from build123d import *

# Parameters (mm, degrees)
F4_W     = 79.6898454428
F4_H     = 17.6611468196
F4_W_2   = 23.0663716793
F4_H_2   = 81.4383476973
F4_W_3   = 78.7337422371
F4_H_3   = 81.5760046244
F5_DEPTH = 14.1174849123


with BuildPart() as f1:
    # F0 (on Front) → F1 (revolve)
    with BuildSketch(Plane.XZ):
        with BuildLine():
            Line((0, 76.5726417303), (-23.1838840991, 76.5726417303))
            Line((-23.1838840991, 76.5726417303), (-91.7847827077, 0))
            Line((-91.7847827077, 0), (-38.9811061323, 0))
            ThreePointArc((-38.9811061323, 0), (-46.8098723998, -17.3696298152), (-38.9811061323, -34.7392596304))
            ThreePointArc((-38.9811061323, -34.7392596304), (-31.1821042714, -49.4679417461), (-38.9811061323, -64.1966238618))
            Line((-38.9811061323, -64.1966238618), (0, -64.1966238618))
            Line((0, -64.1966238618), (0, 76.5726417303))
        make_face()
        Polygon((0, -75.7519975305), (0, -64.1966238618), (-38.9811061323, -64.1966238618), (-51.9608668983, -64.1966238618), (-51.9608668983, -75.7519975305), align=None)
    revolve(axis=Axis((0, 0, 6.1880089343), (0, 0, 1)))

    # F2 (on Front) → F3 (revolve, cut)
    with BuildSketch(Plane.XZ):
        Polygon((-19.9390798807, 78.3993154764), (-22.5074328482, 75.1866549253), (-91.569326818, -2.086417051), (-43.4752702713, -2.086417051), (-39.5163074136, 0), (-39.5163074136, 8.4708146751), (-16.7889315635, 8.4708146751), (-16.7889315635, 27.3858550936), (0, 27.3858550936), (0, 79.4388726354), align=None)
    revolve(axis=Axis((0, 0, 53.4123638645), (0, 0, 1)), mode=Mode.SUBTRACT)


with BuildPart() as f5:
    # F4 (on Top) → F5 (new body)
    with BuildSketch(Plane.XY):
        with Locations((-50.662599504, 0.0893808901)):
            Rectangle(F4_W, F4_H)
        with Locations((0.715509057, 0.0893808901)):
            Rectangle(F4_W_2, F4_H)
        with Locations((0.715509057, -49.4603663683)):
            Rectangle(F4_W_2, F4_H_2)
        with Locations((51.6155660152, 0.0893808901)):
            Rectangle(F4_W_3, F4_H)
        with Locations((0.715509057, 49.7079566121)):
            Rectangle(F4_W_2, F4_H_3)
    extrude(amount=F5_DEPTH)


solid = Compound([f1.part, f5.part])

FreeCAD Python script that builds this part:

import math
import FreeCAD as App
import Part
import Sketcher

V = App.Vector

doc = App.newDocument("Part")
body = doc.addObject("PartDesign::Body", "Body")
body.AllowCompound = True

sketch1 = doc.addObject("Sketcher::SketchObject", "Sketch")
body.addObject(sketch1)
sketch1.AttachmentSupport = (doc.XZ_Plane, [""])
sketch1.MapMode = "FlatFace"
sketch1.addGeometry([
    Part.LineSegment(V(0, 77, 0), V(-23, 77, 0)),
    Part.LineSegment(V(-23, 77, 0), V(-92, 0, 0)),
    Part.LineSegment(V(-92, 0, 0), V(-39, 0, 0)),
    Part.ArcOfCircle(Part.Circle(V(-24, -17, 0), V(0, 0, 1), 23), math.radians(131), math.radians(229)),
    Part.ArcOfCircle(Part.Circle(V(-49, -49, 0), V(0, 0, 1), 18), math.radians(-56), math.radians(56)),
    Part.LineSegment(V(-39, -64, 0), V(-52, -64, 0)),
    Part.LineSegment(V(-52, -64, 0), V(-52, -76, 0)),
    Part.LineSegment(V(-52, -76, 0), V(0, -76, 0)),
    Part.LineSegment(V(0, -76, 0), V(0, 77, 0)),
], False)
sketch1.addConstraint([
    Sketcher.Constraint("Coincident", 0, 2, 1, 1),
    Sketcher.Constraint("Coincident", 1, 2, 2, 1),
    Sketcher.Constraint("Coincident", 2, 2, 3, 1),
    Sketcher.Constraint("Coincident", 3, 2, 4, 2),
    Sketcher.Constraint("Coincident", 4, 1, 5, 1),
    Sketcher.Constraint("Coincident", 5, 2, 6, 1),
    Sketcher.Constraint("Coincident", 6, 2, 7, 1),
    Sketcher.Constraint("Coincident", 7, 2, 8, 1),
    Sketcher.Constraint("Coincident", 8, 2, 0, 1),
    Sketcher.Constraint("Horizontal", 0),
    Sketcher.Constraint("Horizontal", 2),
    Sketcher.Constraint("Horizontal", 5),
    Sketcher.Constraint("Vertical", 6),
    Sketcher.Constraint("Horizontal", 7),
    Sketcher.Constraint("Vertical", 8),
    Sketcher.Constraint("PointOnObject", 1, 2, -1),
    Sketcher.Constraint("PointOnObject", 7, 2, -2),
    Sketcher.Constraint("Vertical", 2, 2, 3, 2),
    Sketcher.Constraint("Vertical", 3, 2, 4, 1),
    Sketcher.Constraint("Radius", 4, 17.807311),
    Sketcher.Constraint("Radius", 3, 23.183322),
    Sketcher.Constraint("DistanceX", 5, 2, 5, 1, 12.979761),
    Sketcher.Constraint("DistanceY", 8, 1, 8, 2, 152.324639),
    Sketcher.Constraint("DistanceX", 1, 2, 0, 2, 68.600899),
    Sketcher.Constraint("DistanceY", 3, 2, 0, 2, 111.311901),
    Sketcher.Constraint("DistanceX", 0, 2, 0, 1, 23.183884),
    Sketcher.Constraint("DistanceX", 2, 1, 2, 2, 52.803677),
    Sketcher.Constraint("DistanceY", 6, 2, 6, 1, 11.555374),
    Sketcher.Constraint("DistanceX", 3, 3, -1, 1, 23.62655),
])
revolution = doc.addObject("PartDesign::Revolution", "Revolution")
body.addObject(revolution)
revolution.Profile = sketch1
revolution.ReferenceAxis = (sketch1, ["V_Axis"])
revolution.Angle = 360

sketch2 = doc.addObject("Sketcher::SketchObject", "Sketch001")
body.addObject(sketch2)
sketch2.AttachmentSupport = (doc.XZ_Plane, [""])
sketch2.MapMode = "FlatFace"
sketch2.addGeometry([
    Part.LineSegment(V(-19.9, 78.4, 0), V(-22.5, 75.2, 0)),
    Part.LineSegment(V(-22.5, 75.2, 0), V(-91.6, -2.1, 0)),
    Part.LineSegment(V(-91.6, -2.1, 0), V(-43.5, -2.1, 0)),
    Part.LineSegment(V(-43.5, -2.1, 0), V(-39.5, 0, 0)),
    Part.LineSegment(V(-39.5, 0, 0), V(-39.5, 8.5, 0)),
    Part.LineSegment(V(-39.5, 8.5, 0), V(-16.8, 8.5, 0)),
    Part.LineSegment(V(-16.8, 8.5, 0), V(-16.8, 27.4, 0)),
    Part.LineSegment(V(-16.8, 27.4, 0), V(0, 27.4, 0)),
    Part.LineSegment(V(0, 27.4, 0), V(0, 79.4, 0)),
    Part.LineSegment(V(0, 79.4, 0), V(-19.9, 78.4, 0)),
], False)
sketch2.addConstraint([
    Sketcher.Constraint("Coincident", 0, 2, 1, 1),
    Sketcher.Constraint("Coincident", 1, 2, 2, 1),
    Sketcher.Constraint("Coincident", 2, 2, 3, 1),
    Sketcher.Constraint("Coincident", 3, 2, 4, 1),
    Sketcher.Constraint("Coincident", 4, 2, 5, 1),
    Sketcher.Constraint("Coincident", 5, 2, 6, 1),
    Sketcher.Constraint("Coincident", 6, 2, 7, 1),
    Sketcher.Constraint("Coincident", 7, 2, 8, 1),
    Sketcher.Constraint("Coincident", 8, 2, 9, 1),
    Sketcher.Constraint("Coincident", 9, 2, 0, 1),
    Sketcher.Constraint("Horizontal", 2),
    Sketcher.Constraint("Vertical", 4),
    Sketcher.Constraint("Horizontal", 5),
    Sketcher.Constraint("Vertical", 6),
    Sketcher.Constraint("Horizontal", 7),
    Sketcher.Constraint("Vertical", 8),
    Sketcher.Constraint("PointOnObject", 3, 2, -1),
    Sketcher.Constraint("PointOnObject", 7, 2, -2),
    Sketcher.Constraint("Distance", 3, 4.4751),
    Sketcher.Constraint("DistanceX", 7, 1, 7, 2, 16.788932),
    Sketcher.Constraint("DistanceY", 6, 1, 6, 2, 18.91504),
    Sketcher.Constraint("DistanceX", 0, 2, 5, 2, 5.718501),
    Sketcher.Constraint("DistanceY", 6, 2, 0, 2, 47.8008),
    Sketcher.Constraint("DistanceY", 5, 2, 9, 2, 69.928501),
    Sketcher.Constraint("Distance", 9, 19.966161),
    Sketcher.Constraint("DistanceX", 2, 1, 2, 2, 48.094057),
    Sketcher.Constraint("DistanceX", 5, 1, 5, 2, 22.727376),
    Sketcher.Constraint("DistanceY", 4, 1, 4, 2, 8.470815),
    Sketcher.Constraint("DistanceY", 8, 1, 8, 2, 52.053018),
    Sketcher.Constraint("DistanceX", 2, 2, -1, 1, 43.47527),
])
groove = doc.addObject("PartDesign::Groove", "Groove")
body.addObject(groove)
groove.Profile = sketch2
groove.ReferenceAxis = (sketch2, ["V_Axis"])
groove.Angle = 360
body2 = doc.addObject("PartDesign::Body", "Body001")

sketch3 = doc.addObject("Sketcher::SketchObject", "Sketch002")
body2.addObject(sketch3)
sketch3.AttachmentSupport = (doc.getObject("XY_Plane001"), [""])
sketch3.MapMode = "FlatFace"
sketch3.addGeometry([
    Part.LineSegment(V(-91, 9, 0), V(-91, -9, 0)),
    Part.LineSegment(V(-91, -9, 0), V(-11, -9, 0)),
    Part.LineSegment(V(-11, -9, 0), V(-11, -90, 0)),
    Part.LineSegment(V(-11, -90, 0), V(12, -90, 0)),
    Part.LineSegment(V(12, -90, 0), V(12, -9, 0)),
    Part.LineSegment(V(12, -9, 0), V(91, -9, 0)),
    Part.LineSegment(V(91, -9, 0), V(91, 9, 0)),
    Part.LineSegment(V(91, 9, 0), V(12, 9, 0)),
    Part.LineSegment(V(12, 9, 0), V(12, 90, 0)),
    Part.LineSegment(V(12, 90, 0), V(-11, 90, 0)),
    Part.LineSegment(V(-11, 90, 0), V(-11, 9, 0)),
    Part.LineSegment(V(-11, 9, 0), V(-91, 9, 0)),
], False)
sketch3.addConstraint([
    Sketcher.Constraint("Coincident", 0, 2, 1, 1),
    Sketcher.Constraint("Coincident", 1, 2, 2, 1),
    Sketcher.Constraint("Coincident", 2, 2, 3, 1),
    Sketcher.Constraint("Coincident", 3, 2, 4, 1),
    Sketcher.Constraint("Coincident", 4, 2, 5, 1),
    Sketcher.Constraint("Coincident", 5, 2, 6, 1),
    Sketcher.Constraint("Coincident", 6, 2, 7, 1),
    Sketcher.Constraint("Coincident", 7, 2, 8, 1),
    Sketcher.Constraint("Coincident", 8, 2, 9, 1),
    Sketcher.Constraint("Coincident", 9, 2, 10, 1),
    Sketcher.Constraint("Coincident", 10, 2, 11, 1),
    Sketcher.Constraint("Coincident", 11, 2, 0, 1),
    Sketcher.Constraint("Vertical", 0),
    Sketcher.Constraint("Horizontal", 1),
    Sketcher.Constraint("Vertical", 2),
    Sketcher.Constraint("Horizontal", 3),
    Sketcher.Constraint("Vertical", 4),
    Sketcher.Constraint("Horizontal", 5),
    Sketcher.Constraint("Vertical", 6),
    Sketcher.Constraint("Horizontal", 7),
    Sketcher.Constraint("Vertical", 8),
    Sketcher.Constraint("Horizontal", 9),
    Sketcher.Constraint("Vertical", 10),
    Sketcher.Constraint("Horizontal", 11),
    Sketcher.Constraint("Horizontal", 1, 2, 4, 2),
    Sketcher.Constraint("Horizontal", 7, 2, 10, 2),
    Sketcher.Constraint("Vertical", 4, 2, 7, 2),
    Sketcher.Constraint("Vertical", 2, 2, 9, 2),
    Sketcher.Constraint("DistanceX", 3, 1, 3, 2, 23.066372),
    Sketcher.Constraint("DistanceX", 1, 1, 1, 2, 79.689845),
    Sketcher.Constraint("DistanceX", 5, 1, 5, 2, 78.733742),
    Sketcher.Constraint("DistanceY", 0, 2, 0, 1, 17.661147),
    Sketcher.Constraint("DistanceY", 2, 2, 2, 1, 81.438348),
    Sketcher.Constraint("DistanceY", 8, 1, 8, 2, 81.576005),
    Sketcher.Constraint("DistanceY", 2, 2, -1, 1, 90.17954),
    Sketcher.Constraint("DistanceX", 0, 2, -1, 1, 90.507522),
])
pad1 = doc.addObject("PartDesign::Pad", "Pad")
body2.addObject(pad1)
pad1.Profile = sketch3
pad1.Length = 14.117485

doc.recompute()
